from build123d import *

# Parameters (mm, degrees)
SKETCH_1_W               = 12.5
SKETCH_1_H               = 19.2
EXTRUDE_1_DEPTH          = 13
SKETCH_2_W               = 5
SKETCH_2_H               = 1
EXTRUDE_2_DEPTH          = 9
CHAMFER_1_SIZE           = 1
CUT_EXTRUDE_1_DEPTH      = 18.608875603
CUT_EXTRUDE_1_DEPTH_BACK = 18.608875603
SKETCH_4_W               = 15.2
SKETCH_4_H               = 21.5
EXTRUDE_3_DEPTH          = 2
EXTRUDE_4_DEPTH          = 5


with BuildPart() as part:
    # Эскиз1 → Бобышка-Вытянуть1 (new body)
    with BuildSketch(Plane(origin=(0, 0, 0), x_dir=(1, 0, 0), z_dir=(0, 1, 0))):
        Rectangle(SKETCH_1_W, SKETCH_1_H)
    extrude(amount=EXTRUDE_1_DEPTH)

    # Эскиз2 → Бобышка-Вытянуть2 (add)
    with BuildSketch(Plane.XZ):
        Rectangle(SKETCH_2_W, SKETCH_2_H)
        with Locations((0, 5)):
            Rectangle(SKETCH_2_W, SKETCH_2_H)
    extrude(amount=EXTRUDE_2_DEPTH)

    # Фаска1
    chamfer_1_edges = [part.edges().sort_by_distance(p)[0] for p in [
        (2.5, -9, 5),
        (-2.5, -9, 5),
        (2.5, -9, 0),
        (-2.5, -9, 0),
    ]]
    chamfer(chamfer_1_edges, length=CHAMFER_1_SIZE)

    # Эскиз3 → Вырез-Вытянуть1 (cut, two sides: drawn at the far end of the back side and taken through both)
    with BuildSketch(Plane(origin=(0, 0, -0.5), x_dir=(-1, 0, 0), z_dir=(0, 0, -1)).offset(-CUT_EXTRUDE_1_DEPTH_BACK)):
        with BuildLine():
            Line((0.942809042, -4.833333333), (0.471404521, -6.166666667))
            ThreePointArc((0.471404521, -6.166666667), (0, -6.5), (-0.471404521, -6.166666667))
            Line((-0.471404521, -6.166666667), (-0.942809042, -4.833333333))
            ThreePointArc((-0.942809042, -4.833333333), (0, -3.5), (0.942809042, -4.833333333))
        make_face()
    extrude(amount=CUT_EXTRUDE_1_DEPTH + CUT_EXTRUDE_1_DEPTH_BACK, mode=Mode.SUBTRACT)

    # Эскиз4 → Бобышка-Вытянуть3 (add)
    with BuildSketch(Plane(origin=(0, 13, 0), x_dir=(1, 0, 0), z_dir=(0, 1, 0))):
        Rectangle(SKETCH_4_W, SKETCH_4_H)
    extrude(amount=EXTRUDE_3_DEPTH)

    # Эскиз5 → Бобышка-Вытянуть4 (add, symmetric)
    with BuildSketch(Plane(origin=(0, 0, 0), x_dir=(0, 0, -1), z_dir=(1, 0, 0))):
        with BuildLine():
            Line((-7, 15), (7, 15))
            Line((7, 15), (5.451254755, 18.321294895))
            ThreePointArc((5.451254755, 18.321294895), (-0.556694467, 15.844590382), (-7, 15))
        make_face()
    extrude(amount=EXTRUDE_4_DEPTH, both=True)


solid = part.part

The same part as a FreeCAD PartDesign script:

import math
import FreeCAD as App
import Part
import Sketcher
Q = App.Units.Quantity


def edges_at(feature, points):
    """Names of the edges that pass closest to the given points."""
    edges = feature.Shape.Edges
    near = lambda p: min(range(len(edges)), key=lambda i: edges[i].distToShape(Part.Vertex(*p))[0])
    return sorted({f"Edge{near(p) + 1}" for p in points})

doc = App.newDocument("Part")
params = doc.addObject("Spreadsheet::Sheet", "Params")
for row, (alias, value) in enumerate([
    ("sketch1_width", "12.5 mm"),
    ("sketch1_height", "19.2 mm"),
    ("pad1_length", "13 mm"),
    ("sketch2_width", "5 mm"),
    ("sketch2_height", "1 mm"),
    ("pad2_length", "9 mm"),
    ("chamfer_size", "1 mm"),
    ("sketch3_radius", "1 mm"),
    ("sketch3_radius2", "0.5 mm"),
    ("sketch4_width", "15.2 mm"),
    ("sketch4_height", "21.5 mm"),
    ("pad3_length", "2 mm"),
    ("sketch5_radius", "25 mm"),
    ("sketch5_height", "14 mm"),
    ("pad4_length", "10 mm"),
], start=1):
    params.set(f"A{row}", alias)
    params.set(f"B{row}", "=" + value)
    params.setAlias(f"B{row}", alias)

body = doc.addObject("PartDesign::Body", "Body")

# Sketch on XZ plane
sketch1 = doc.addObject("Sketcher::SketchObject", "Sketch")
body.addObject(sketch1)
sketch1.AttachmentSupport = (doc.XZ_Plane, [""])
sketch1.MapMode = "FlatFace"
sketch1.addGeometry(Part.LineSegment(App.Vector(-6, -10, 0), App.Vector(-6, 10, 0)), False)
sketch1.addGeometry(Part.LineSegment(App.Vector(-6, 10, 0), App.Vector(6, 10, 0)), False)
sketch1.addGeometry(Part.LineSegment(App.Vector(6, 10, 0), App.Vector(6, -10, 0)), False)
sketch1.addGeometry(Part.LineSegment(App.Vector(6, -10, 0), App.Vector(-6, -10, 0)), False)
sketch1.addConstraint(Sketcher.Constraint("Coincident", 0, 2, 1, 1))
sketch1.addConstraint(Sketcher.Constraint("Coincident", 1, 2, 2, 1))
sketch1.addConstraint(Sketcher.Constraint("Coincident", 2, 2, 3, 1))
sketch1.addConstraint(Sketcher.Constraint("Coincident", 3, 2, 0, 1))
sketch1.addConstraint(Sketcher.Constraint("Vertical", 0))
sketch1.addConstraint(Sketcher.Constraint("Horizontal", 1))
sketch1.addConstraint(Sketcher.Constraint("Vertical", 2))
sketch1.addConstraint(Sketcher.Constraint("Horizontal", 3))
sketch1.addConstraint(Sketcher.Constraint("Symmetric", 0, 2, 2, 2, -1, 1))
sketch1.addConstraint(Sketcher.Constraint("DistanceX", 1, 1, 1, 2, 12.5))
sketch1.addConstraint(Sketcher.Constraint("DistanceY", 0, 1, 0, 2, 19.2))
sketch1.setExpression("Constraints[9]", "Params.sketch1_width")
sketch1.setExpression("Constraints[10]", "Params.sketch1_height")
pad1 = doc.addObject("PartDesign::Pad", "Pad")
body.addObject(pad1)
pad1.Profile = sketch1
pad1.setExpression("Length", "Params.pad1_length")
pad1.Reversed = True

# Sketch on XZ plane
sketch2 = doc.addObject("Sketcher::SketchObject", "Sketch001")
body.addObject(sketch2)
sketch2.AttachmentSupport = (doc.XZ_Plane, [""])
sketch2.MapMode = "FlatFace"
sketch2.addGeometry(Part.LineSegment(App.Vector(-2.5, 0.5, 0), App.Vector(-2.5, -0.5, 0)), False)
sketch2.addGeometry(Part.LineSegment(App.Vector(-2.5, -0.5, 0), App.Vector(2.5, -0.5, 0)), False)
sketch2.addGeometry(Part.LineSegment(App.Vector(2.5, -0.5, 0), App.Vector(2.5, 0.5, 0)), False)
sketch2.addGeometry(Part.LineSegment(App.Vector(2.5, 0.5, 0), App.Vector(-2.5, 0.5, 0)), False)
sketch2.addGeometry(Part.LineSegment(App.Vector(-2.5, 5.5, 0), App.Vector(-2.5, 4.5, 0)), False)
sketch2.addGeometry(Part.LineSegment(App.Vector(-2.5, 4.5, 0), App.Vector(2.5, 4.5, 0)), False)
sketch2.addGeometry(Part.LineSegment(App.Vector(2.5, 4.5, 0), App.Vector(2.5, 5.5, 0)), False)
sketch2.addGeometry(Part.LineSegment(App.Vector(2.5, 5.5, 0), App.Vector(-2.5, 5.5, 0)), False)
sketch2.addConstraint(Sketcher.Constraint("Coincident", 0, 2, 1, 1))
sketch2.addConstraint(Sketcher.Constraint("Coincident", 1, 2, 2, 1))
sketch2.addConstraint(Sketcher.Constraint("Coincident", 2, 2, 3, 1))
sketch2.addConstraint(Sketcher.Constraint("Coincident", 3, 2, 0, 1))
sketch2.addConstraint(Sketcher.Constraint("Coincident", 4, 2, 5, 1))
sketch2.addConstraint(Sketcher.Constraint("Coincident", 5, 2, 6, 1))
sketch2.addConstraint(Sketcher.Constraint("Coincident", 6, 2, 7, 1))
sketch2.addConstraint(Sketcher.Constraint("Coincident", 7, 2, 4, 1))
sketch2.addConstraint(Sketcher.Constraint("Vertical", 0))
sketch2.addConstraint(Sketcher.Constraint("Horizontal", 1))
sketch2.addConstraint(Sketcher.Constraint("Vertical", 2))
sketch2.addConstraint(Sketcher.Constraint("Horizontal", 3))
sketch2.addConstraint(Sketcher.Constraint("Vertical", 4))
sketch2.addConstraint(Sketcher.Constraint("Horizontal", 5))
sketch2.addConstraint(Sketcher.Constraint("Vertical", 6))
sketch2.addConstraint(Sketcher.Constraint("Horizontal", 7))
sketch2.addConstraint(Sketcher.Constraint("Symmetric", 0, 2, 2, 2, -1, 1))
sketch2.addConstraint(Sketcher.Constraint("Vertical", 3, 2, 4, 2))
sketch2.addConstraint(Sketcher.Constraint("Vertical", 2, 2, 5, 2))
sketch2.addConstraint(Sketcher.Constraint("Equal", 2, 4))
sketch2.addConstraint(Sketcher.Constraint("DistanceX", 1, 1, 1, 2, 5.0))
sketch2.addConstraint(Sketcher.Constraint("DistanceY", 0, 2, 0, 1, 1.0))
sketch2.addConstraint(Sketcher.Constraint("DistanceY", 3, 2, 4, 2, 4.0))
sketch2.setExpression("Constraints[20]", "Params.sketch2_width")
sketch2.setExpression("Constraints[21]", "Params.sketch2_height")
pad2 = doc.addObject("PartDesign::Pad", "Pad001")
body.addObject(pad2)
pad2.Profile = sketch2
pad2.setExpression("Length", "Params.pad2_length")
doc.recompute()

chamfer = doc.addObject("PartDesign::Chamfer", "Chamfer")
body.addObject(chamfer)
chamfer.Base = (pad2, edges_at(pad2, [
    (2.5, -9, 5),
    (-2.5, -9, 5),
    (2.5, -9, 0),
    (-2.5, -9, 0),
]))
chamfer.setExpression("Size", "Params.chamfer_size")

# Sketch on XY plane
sketch3 = doc.addObject("Sketcher::SketchObject", "Sketch002")
body.addObject(sketch3)
sketch3.AttachmentSupport = (doc.XY_Plane, [""])
sketch3.MapMode = "FlatFace"
sketch3.AttachmentOffset = App.Placement(App.Vector(0, 0, -0.5), App.Rotation())
sketch3.addGeometry(Part.LineSegment(App.Vector(-0.5, -6.2, 0), App.Vector(-0.9, -4.8, 0)), False)
sketch3.addGeometry(Part.ArcOfCircle(Part.Circle(App.Vector(0, -4.5, 0), App.Vector(0, 0, 1), 1), math.radians(-19), math.radians(199)), False)
sketch3.addGeometry(Part.LineSegment(App.Vector(0.9, -4.8, 0), App.Vector(0.5, -6.2, 0)), False)
sketch3.addGeometry(Part.ArcOfCircle(Part.Circle(App.Vector(0, -6, 0), App.Vector(0, 0, 1), 0.5), math.radians(-161), math.radians(-19)), False)
sketch3.addConstraint(Sketcher.Constraint("Tangent", 0, 2, 1, 2))
sketch3.addConstraint(Sketcher.Constraint("Tangent", 1, 1, 2, 1))
sketch3.addConstraint(Sketcher.Constraint("Tangent", 2, 2, 3, 2))
sketch3.addConstraint(Sketcher.Constraint("Tangent", 3, 1, 0, 1))
sketch3.addConstraint(Sketcher.Constraint("Symmetric", 0, 2, 1, 1, -2))
sketch3.addConstraint(Sketcher.Constraint("Radius", 1, 1.0))
sketch3.addConstraint(Sketcher.Constraint("Radius", 3, 0.5))
sketch3.addConstraint(Sketcher.Constraint("DistanceY", 3, 3, -1, 1, 6.0))
sketch3.addConstraint(Sketcher.Constraint("DistanceY", 1, 3, -1, 1, 4.5))
sketch3.setExpression("Constraints[5]", "Params.sketch3_radius")
sketch3.setExpression("Constraints[6]", "Params.sketch3_radius2")
pocket1 = doc.addObject("PartDesign::Pocket", "Pocket")
body.addObject(pocket1)
pocket1.Profile = sketch3
pocket1.Type = "ThroughAll"
pocket1.Midplane = True

# Sketch on XZ plane
sketch4 = doc.addObject("Sketcher::SketchObject", "Sketch003")
body.addObject(sketch4)
sketch4.AttachmentSupport = (doc.XZ_Plane, [""])
sketch4.MapMode = "FlatFace"
sketch4.AttachmentOffset = App.Placement(App.Vector(0, 0, -13), App.Rotation())
sketch4.addGeometry(Part.LineSegment(App.Vector(-8, -11, 0), App.Vector(-8, 11, 0)), False)
sketch4.addGeometry(Part.LineSegment(App.Vector(-8, 11, 0), App.Vector(8, 11, 0)), False)
sketch4.addGeometry(Part.LineSegment(App.Vector(8, 11, 0), App.Vector(8, -11, 0)), False)
sketch4.addGeometry(Part.LineSegment(App.Vector(8, -11, 0), App.Vector(-8, -11, 0)), False)
sketch4.addConstraint(Sketcher.Constraint("Coincident", 0, 2, 1, 1))
sketch4.addConstraint(Sketcher.Constraint("Coincident", 1, 2, 2, 1))
sketch4.addConstraint(Sketcher.Constraint("Coincident", 2, 2, 3, 1))
sketch4.addConstraint(Sketcher.Constraint("Coincident", 3, 2, 0, 1))
sketch4.addConstraint(Sketcher.Constraint("Vertical", 0))
sketch4.addConstraint(Sketcher.Constraint("Horizontal", 1))
sketch4.addConstraint(Sketcher.Constraint("Vertical", 2))
sketch4.addConstraint(Sketcher.Constraint("Horizontal", 3))
sketch4.addConstraint(Sketcher.Constraint("Symmetric", 0, 2, 2, 2, -1, 1))
sketch4.addConstraint(Sketcher.Constraint("DistanceX", 1, 1, 1, 2, 15.2))
sketch4.addConstraint(Sketcher.Constraint("DistanceY", 0, 1, 0, 2, 21.5))
sketch4.setExpression("Constraints[9]", "Params.sketch4_width")
sketch4.setExpression("Constraints[10]", "Params.sketch4_height")
pad3 = doc.addObject("PartDesign::Pad", "Pad002")
body.addObject(pad3)
pad3.Profile = sketch4
pad3.setExpression("Length", "Params.pad3_length")
pad3.Reversed = True

# Sketch on YZ plane
sketch5 = doc.addObject("Sketcher::SketchObject", "Sketch004")
body.addObject(sketch5)
sketch5.AttachmentSupport = (doc.YZ_Plane, [""])
sketch5.MapMode = "FlatFace"
sketch5.addGeometry(Part.LineSegment(App.Vector(15, 7, 0), App.Vector(15, -7, 0)), False)
sketch5.addGeometry(Part.LineSegment(App.Vector(15, -7, 0), App.Vector(18.3, -5.5, 0)), False)
sketch5.addGeometry(Part.ArcOfCircle(Part.Circle(App.Vector(40, 7, 0), App.Vector(0, 0, 1), 25), math.radians(180), math.radians(210)), False)
sketch5.addConstraint(Sketcher.Constraint("Coincident", 0, 2, 1, 1))
sketch5.addConstraint(Sketcher.Constraint("Coincident", 1, 2, 2, 2))
sketch5.addConstraint(Sketcher.Constraint("Tangent", 2, 1, 0, 1))
sketch5.addConstraint(Sketcher.Constraint("Vertical", 0))
sketch5.addConstraint(Sketcher.Constraint("Radius", 2, 25.0))
sketch5.addConstraint(Sketcher.Constraint("DistanceY", 0, 2, 0, 1, 14.0))
sketch5.addConstraint(Sketcher.Constraint("Angle", 1, Q("25 deg")))
sketch5.addConstraint(Sketcher.Constraint("DistanceX", -1, 1, 2, 3, 40.0))
sketch5.addConstraint(Sketcher.Constraint("DistanceY", -1, 1, 2, 3, 7.0))
sketch5.setExpression("Constraints[4]", "Params.sketch5_radius")
sketch5.setExpression("Constraints[5]", "Params.sketch5_height")
pad4 = doc.addObject("PartDesign::Pad", "Pad003")
body.addObject(pad4)
pad4.Profile = sketch5
pad4.setExpression("Length", "Params.pad4_length")
pad4.Midplane = True

doc.recompute()
